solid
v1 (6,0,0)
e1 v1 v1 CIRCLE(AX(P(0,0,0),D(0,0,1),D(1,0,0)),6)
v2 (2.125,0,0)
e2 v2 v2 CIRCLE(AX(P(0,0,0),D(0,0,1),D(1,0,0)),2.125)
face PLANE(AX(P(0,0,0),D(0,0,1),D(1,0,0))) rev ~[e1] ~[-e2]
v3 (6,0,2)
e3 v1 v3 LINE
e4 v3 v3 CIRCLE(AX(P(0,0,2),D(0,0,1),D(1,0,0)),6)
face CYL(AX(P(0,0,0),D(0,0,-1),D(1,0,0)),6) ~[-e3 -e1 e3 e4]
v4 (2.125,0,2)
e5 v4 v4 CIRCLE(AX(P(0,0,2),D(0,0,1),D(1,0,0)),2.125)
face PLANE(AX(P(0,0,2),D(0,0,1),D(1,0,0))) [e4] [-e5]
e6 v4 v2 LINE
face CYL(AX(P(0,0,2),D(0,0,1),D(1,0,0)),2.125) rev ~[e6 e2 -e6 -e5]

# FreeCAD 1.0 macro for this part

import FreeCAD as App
import Part
import Sketcher

doc = App.newDocument("Part")
body = doc.addObject("PartDesign::Body", "Body")

# Sketch on XY plane
sketch1 = body.newObject("Sketcher::SketchObject", "Sketch")
sketch1.AttachmentSupport = (doc.getObject("XY_Plane"), [""])
sketch1.MapMode = "FlatFace"
sketch1.addGeometry(Part.Circle(App.Vector(0, 0, 0), App.Vector(0, 0, 1), 6), False)
sketch1.addGeometry(Part.Circle(App.Vector(0, 0, 0), App.Vector(0, 0, 1), 2.1), False)
sketch1.addConstraint(Sketcher.Constraint("Coincident", 0, 3, -1, 1))
sketch1.addConstraint(Sketcher.Constraint("Coincident", 1, 3, -1, 1))
sketch1.addConstraint(Sketcher.Constraint("Diameter", 0, 12.0))
sketch1.addConstraint(Sketcher.Constraint("Diameter", 1, 4.2))
pad1 = body.newObject("PartDesign::Pad", "Pad")
pad1.Profile = sketch1
pad1.Length = 2

# Sketch on XY plane
sketch2 = body.newObject("Sketcher::SketchObject", "Sketch001")
sketch2.AttachmentSupport = (doc.getObject("XY_Plane"), [""])
sketch2.MapMode = "FlatFace"
sketch2.AttachmentOffset = App.Placement(App.Vector(0, 0, 2), App.Rotation())
sketch2.addGeometry(Part.Circle(App.Vector(0, 0, 0), App.Vector(0, 0, 1), 2.125), False)
sketch2.addConstraint(Sketcher.Constraint("Coincident", 0, 3, -1, 1))
sketch2.addConstraint(Sketcher.Constraint("Diameter", 0, 4.25))
pocket1 = body.newObject("PartDesign::Pocket", "Pocket")
pocket1.Profile = sketch2
pocket1.Type = "ThroughAll"

doc.recompute()
